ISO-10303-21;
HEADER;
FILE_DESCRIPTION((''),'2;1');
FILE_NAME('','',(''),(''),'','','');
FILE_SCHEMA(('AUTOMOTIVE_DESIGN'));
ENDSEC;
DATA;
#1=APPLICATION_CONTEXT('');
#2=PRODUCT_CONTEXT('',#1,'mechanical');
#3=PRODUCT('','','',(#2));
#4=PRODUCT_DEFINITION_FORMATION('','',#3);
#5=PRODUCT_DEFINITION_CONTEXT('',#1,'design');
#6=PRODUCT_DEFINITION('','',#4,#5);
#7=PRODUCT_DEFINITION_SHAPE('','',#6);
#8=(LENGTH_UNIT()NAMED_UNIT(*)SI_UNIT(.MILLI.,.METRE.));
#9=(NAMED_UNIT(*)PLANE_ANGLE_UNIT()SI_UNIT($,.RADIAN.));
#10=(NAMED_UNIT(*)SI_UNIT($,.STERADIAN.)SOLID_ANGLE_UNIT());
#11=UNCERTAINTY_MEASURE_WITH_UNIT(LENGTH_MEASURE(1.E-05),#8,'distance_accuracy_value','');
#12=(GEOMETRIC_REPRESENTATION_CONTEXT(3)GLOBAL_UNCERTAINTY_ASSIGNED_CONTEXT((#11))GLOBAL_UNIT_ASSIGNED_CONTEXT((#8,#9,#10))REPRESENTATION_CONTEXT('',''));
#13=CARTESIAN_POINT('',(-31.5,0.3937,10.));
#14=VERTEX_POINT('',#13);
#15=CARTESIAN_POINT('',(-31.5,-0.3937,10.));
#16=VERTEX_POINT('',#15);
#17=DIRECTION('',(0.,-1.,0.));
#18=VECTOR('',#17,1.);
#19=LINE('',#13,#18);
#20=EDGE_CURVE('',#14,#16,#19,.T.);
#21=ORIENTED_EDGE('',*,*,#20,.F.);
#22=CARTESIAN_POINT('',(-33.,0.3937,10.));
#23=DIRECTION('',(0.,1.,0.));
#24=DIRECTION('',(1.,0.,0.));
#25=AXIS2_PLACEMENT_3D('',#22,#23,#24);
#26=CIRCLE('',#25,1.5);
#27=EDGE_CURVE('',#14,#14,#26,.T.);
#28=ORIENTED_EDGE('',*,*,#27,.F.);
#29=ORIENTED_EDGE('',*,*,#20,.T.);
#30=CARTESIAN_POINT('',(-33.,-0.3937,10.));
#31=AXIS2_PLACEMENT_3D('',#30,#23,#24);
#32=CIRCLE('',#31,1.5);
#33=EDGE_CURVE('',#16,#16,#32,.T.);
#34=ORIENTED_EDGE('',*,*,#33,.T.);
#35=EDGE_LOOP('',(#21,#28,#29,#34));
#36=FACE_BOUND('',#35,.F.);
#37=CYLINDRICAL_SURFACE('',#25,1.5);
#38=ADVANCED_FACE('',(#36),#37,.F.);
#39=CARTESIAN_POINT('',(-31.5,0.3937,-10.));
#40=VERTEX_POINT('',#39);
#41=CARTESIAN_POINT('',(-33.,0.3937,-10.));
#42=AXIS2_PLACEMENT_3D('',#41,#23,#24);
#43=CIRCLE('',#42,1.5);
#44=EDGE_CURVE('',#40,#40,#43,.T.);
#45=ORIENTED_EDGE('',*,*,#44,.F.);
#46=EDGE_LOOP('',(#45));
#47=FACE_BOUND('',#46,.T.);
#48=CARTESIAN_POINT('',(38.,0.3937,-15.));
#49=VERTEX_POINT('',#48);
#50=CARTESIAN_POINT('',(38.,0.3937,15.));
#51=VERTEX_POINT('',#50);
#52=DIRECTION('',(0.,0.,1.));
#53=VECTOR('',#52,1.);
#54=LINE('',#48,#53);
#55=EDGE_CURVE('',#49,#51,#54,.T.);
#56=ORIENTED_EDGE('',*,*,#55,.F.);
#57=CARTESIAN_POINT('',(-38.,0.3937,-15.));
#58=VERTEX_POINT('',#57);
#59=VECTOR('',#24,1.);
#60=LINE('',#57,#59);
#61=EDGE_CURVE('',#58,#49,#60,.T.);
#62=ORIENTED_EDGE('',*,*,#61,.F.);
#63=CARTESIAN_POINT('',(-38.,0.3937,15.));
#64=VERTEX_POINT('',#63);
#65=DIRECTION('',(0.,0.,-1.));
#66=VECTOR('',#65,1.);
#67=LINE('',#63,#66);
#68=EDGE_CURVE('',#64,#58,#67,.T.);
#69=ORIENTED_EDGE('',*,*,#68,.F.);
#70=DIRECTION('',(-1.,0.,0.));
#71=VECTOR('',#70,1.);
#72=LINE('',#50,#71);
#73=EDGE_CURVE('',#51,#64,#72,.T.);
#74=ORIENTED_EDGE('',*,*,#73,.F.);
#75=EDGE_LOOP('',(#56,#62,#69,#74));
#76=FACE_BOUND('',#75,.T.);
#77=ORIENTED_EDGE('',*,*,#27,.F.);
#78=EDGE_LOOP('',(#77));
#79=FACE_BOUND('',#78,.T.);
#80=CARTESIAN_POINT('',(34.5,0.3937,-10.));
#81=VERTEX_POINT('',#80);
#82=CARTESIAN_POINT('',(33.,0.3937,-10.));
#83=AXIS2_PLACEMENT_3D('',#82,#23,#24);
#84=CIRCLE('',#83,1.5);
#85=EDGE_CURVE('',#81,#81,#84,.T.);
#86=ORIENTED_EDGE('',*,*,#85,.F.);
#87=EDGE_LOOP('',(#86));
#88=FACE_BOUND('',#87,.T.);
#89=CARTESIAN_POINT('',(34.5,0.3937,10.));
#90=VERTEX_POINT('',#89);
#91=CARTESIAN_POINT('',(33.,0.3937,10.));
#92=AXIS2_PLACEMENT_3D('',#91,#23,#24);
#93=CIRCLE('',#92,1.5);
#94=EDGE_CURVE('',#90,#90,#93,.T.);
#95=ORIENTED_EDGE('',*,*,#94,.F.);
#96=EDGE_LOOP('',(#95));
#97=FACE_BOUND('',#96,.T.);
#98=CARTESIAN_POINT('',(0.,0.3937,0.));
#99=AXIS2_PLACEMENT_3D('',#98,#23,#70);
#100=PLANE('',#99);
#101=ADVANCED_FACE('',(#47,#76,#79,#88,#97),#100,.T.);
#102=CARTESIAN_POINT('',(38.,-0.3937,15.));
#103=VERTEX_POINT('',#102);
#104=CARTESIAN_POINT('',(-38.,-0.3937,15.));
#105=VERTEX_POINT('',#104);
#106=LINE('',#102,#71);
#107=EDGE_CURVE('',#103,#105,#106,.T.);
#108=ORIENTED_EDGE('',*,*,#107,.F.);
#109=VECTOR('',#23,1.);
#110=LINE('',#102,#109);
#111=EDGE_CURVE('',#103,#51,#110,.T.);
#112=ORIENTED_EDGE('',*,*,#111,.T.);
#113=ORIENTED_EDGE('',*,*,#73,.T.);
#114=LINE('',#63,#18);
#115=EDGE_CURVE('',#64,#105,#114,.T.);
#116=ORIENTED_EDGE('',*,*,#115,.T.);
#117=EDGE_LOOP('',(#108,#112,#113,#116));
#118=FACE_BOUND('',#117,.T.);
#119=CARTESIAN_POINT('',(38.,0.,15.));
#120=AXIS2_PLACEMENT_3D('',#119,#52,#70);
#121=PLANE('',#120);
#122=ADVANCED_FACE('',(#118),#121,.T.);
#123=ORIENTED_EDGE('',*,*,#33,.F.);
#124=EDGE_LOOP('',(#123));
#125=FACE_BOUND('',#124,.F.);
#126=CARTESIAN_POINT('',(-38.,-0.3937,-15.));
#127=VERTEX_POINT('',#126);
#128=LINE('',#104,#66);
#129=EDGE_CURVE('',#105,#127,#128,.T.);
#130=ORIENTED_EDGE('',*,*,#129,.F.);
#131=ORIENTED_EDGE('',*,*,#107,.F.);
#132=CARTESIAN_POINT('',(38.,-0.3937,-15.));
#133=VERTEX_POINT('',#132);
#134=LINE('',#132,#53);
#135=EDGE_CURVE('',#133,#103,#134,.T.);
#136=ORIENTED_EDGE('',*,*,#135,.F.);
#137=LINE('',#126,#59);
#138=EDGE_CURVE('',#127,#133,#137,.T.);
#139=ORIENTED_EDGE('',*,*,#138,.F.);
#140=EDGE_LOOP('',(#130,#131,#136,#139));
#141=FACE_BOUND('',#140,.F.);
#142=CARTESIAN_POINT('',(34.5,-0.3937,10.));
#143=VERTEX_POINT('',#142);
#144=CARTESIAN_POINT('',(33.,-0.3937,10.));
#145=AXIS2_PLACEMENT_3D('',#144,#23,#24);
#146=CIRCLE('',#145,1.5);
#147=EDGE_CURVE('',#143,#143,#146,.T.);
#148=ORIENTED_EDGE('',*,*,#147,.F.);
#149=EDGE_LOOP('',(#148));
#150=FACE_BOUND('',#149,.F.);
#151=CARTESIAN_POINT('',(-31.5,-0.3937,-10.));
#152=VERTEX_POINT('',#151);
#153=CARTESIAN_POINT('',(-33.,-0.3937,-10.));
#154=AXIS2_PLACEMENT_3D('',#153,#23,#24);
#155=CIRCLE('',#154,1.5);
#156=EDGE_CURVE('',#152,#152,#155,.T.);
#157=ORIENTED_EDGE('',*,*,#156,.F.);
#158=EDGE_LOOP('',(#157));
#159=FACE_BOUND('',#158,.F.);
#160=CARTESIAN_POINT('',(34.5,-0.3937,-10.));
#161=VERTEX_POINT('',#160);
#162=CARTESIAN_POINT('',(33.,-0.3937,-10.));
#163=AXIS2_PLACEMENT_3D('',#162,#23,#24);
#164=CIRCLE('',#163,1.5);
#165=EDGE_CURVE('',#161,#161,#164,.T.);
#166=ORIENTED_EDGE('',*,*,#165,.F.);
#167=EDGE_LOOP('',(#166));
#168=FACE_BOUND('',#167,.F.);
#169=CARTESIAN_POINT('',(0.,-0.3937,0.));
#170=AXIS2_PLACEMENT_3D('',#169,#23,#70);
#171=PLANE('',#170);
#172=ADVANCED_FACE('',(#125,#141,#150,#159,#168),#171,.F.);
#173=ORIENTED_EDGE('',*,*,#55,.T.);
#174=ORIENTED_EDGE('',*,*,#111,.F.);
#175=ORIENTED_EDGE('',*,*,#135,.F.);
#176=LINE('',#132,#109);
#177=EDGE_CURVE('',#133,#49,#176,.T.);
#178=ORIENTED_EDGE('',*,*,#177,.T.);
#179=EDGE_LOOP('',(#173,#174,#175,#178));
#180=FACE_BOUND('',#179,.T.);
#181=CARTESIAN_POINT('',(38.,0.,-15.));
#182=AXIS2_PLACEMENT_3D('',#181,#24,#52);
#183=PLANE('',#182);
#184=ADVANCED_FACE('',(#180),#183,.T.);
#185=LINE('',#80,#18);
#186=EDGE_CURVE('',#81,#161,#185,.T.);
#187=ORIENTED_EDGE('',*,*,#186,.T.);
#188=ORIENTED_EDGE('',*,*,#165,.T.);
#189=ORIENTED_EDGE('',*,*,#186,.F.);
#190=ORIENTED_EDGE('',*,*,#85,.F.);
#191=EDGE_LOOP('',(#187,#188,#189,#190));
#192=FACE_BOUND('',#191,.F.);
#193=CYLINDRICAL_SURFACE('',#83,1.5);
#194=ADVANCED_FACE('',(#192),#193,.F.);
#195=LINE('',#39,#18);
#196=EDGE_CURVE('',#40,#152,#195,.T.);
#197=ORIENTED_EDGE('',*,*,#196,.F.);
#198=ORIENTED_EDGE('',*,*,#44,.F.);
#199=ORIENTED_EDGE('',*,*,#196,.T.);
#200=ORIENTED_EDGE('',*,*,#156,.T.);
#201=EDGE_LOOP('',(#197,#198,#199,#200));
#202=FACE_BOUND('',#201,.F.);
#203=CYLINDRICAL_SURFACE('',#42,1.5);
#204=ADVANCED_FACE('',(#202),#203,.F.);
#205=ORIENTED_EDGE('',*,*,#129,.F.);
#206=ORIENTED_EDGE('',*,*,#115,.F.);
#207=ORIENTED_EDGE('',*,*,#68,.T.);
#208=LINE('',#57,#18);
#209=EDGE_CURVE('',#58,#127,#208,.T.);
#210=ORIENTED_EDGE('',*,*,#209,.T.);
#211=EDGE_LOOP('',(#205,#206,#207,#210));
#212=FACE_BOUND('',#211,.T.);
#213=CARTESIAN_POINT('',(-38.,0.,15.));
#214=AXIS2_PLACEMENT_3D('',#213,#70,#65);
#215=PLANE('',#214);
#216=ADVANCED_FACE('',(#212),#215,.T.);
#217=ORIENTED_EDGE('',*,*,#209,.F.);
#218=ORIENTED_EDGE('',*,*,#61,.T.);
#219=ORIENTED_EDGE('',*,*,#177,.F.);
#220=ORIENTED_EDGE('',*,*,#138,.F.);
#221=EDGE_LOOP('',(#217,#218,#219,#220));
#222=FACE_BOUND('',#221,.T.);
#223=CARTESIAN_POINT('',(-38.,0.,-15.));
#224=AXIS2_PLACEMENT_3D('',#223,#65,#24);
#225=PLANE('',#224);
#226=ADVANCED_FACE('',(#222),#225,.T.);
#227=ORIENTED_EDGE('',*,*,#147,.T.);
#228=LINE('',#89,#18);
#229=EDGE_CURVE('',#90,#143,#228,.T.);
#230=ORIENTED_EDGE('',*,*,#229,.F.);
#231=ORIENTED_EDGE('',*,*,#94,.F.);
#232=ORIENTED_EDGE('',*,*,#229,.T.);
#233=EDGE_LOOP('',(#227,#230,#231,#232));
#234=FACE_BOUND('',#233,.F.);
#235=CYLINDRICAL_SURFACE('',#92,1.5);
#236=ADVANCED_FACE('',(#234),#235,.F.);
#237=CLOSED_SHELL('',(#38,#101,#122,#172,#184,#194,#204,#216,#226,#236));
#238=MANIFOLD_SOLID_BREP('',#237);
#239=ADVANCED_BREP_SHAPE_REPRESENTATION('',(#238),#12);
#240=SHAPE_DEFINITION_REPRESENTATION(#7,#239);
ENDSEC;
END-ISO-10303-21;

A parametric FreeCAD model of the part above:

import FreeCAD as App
import Part
import Sketcher
Q = App.Units.Quantity


def add_polygon(sketch, points):
    """Adds a closed chain of lines whose ends are joined by coincident constraints."""
    first, n = sketch.GeometryCount, len(points)
    for a, b in zip(points, points[1:] + points[:1]):
        sketch.addGeometry(Part.LineSegment(App.Vector(*a, 0), App.Vector(*b, 0)), False)
    for i in range(n):
        sketch.addConstraint(Sketcher.Constraint("Coincident", first + i, 2, first + (i + 1) % n, 1))

doc = App.newDocument("Part")
body = doc.addObject("PartDesign::Body", "Body")

# Sketch on XZ plane
sketch1 = body.newObject("Sketcher::SketchObject", "Sketch")
sketch1.AttachmentSupport = (doc.getObject("XZ_Plane"), [""])
sketch1.MapMode = "FlatFace"
add_polygon(sketch1, [(-38, 15), (38, 15), (38, -15), (-38, -15)])  # lines 0-3
sketch1.addConstraint([
    Sketcher.Constraint("Horizontal", 0),
    Sketcher.Constraint("Vertical", 1),
    Sketcher.Constraint("Horizontal", 2),
    Sketcher.Constraint("Vertical", 3),
    Sketcher.Constraint("Symmetric", 0, 2, 2, 2, -1, 1),
    Sketcher.Constraint("DistanceX", 0, 1, 0, 2, Q("76 mm")),
    Sketcher.Constraint("DistanceY", 1, 2, 1, 1, Q("30 mm")),
])
pad1 = body.newObject("PartDesign::Pad", "Pad")
pad1.Profile = sketch1
pad1.Length = 0.7874
pad1.Midplane = True

# Sketch on XZ plane
sketch2 = body.newObject("Sketcher::SketchObject", "Sketch001")
sketch2.AttachmentSupport = (doc.getObject("XZ_Plane"), [""])
sketch2.MapMode = "FlatFace"
sketch2.AttachmentOffset = App.Placement(App.Vector(0, 0, -0.3937), App.Rotation())
sketch2.addGeometry([
    Part.Circle(App.Vector(-33, 10, 0), App.Vector(0, 0, 1), 1.5),
    Part.Circle(App.Vector(-33, -10, 0), App.Vector(0, 0, 1), 1.5),
    Part.Circle(App.Vector(33, 10, 0), App.Vector(0, 0, 1), 1.5),
    Part.Circle(App.Vector(33, -10, 0), App.Vector(0, 0, 1), 1.5),
], False)
sketch2.addConstraint([
    Sketcher.Constraint("Equal", 0, 1),
    Sketcher.Constraint("Equal", 1, 2),
    Sketcher.Constraint("Equal", 2, 3),
    Sketcher.Constraint("Symmetric", 1, 3, 2, 3, -1, 1),
    Sketcher.Constraint("Symmetric", 0, 3, 3, 3, -1, 1),
    Sketcher.Constraint("Symmetric", 0, 3, 2, 3, -2),
    Sketcher.Constraint("Diameter", 0, Q("3 mm")),
    Sketcher.Constraint("DistanceX", 0, 3, -1, 1, Q("33 mm")),
    Sketcher.Constraint("DistanceY", -1, 1, 0, 3, Q("10 mm")),
])
pocket1 = body.newObject("PartDesign::Pocket", "Pocket")
pocket1.Profile = sketch2
pocket1.Type = "ThroughAll"
pocket1.Reversed = True

doc.recompute()
